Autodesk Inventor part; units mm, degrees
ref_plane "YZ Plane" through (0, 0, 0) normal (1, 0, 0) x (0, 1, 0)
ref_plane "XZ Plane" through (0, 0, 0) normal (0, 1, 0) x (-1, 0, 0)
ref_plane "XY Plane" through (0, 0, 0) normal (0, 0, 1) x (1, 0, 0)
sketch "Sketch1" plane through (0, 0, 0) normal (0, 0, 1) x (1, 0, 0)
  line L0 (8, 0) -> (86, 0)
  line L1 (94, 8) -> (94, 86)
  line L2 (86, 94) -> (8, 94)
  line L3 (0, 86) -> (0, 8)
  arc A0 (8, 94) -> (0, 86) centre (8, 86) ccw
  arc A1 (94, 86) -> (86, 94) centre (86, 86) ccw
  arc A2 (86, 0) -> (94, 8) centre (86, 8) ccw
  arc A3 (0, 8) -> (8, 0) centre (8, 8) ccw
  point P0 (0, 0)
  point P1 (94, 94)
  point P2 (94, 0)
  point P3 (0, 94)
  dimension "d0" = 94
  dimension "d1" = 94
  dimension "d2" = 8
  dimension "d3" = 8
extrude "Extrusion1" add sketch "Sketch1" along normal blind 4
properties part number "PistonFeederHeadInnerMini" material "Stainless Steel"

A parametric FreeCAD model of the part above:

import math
import FreeCAD as App
import Part
import Sketcher
Q = App.Units.Quantity

doc = App.newDocument("Part")
body = doc.addObject("PartDesign::Body", "Body")

# Sketch on XY plane
sketch1 = body.newObject("Sketcher::SketchObject", "Sketch")
sketch1.AttachmentSupport = (doc.getObject("XY_Plane"), [""])
sketch1.MapMode = "FlatFace"
sketch1.addGeometry([
    Part.ArcOfCircle(Part.Circle(App.Vector(8, 8, 0), App.Vector(0, 0, 1), 8), math.radians(180), math.radians(270)),  # 0
    Part.LineSegment(App.Vector(8, 0, 0), App.Vector(86, 0, 0)),  # 1
    Part.ArcOfCircle(Part.Circle(App.Vector(86, 8, 0), App.Vector(0, 0, 1), 8), math.radians(-90), math.radians(0)),  # 2
    Part.LineSegment(App.Vector(94, 8, 0), App.Vector(94, 86, 0)),  # 3
    Part.ArcOfCircle(Part.Circle(App.Vector(86, 86, 0), App.Vector(0, 0, 1), 8), math.radians(0), math.radians(90)),  # 4
    Part.LineSegment(App.Vector(86, 94, 0), App.Vector(8, 94, 0)),  # 5
    Part.ArcOfCircle(Part.Circle(App.Vector(8, 86, 0), App.Vector(0, 0, 1), 8), math.radians(90), math.radians(180)),  # 6
    Part.LineSegment(App.Vector(0, 86, 0), App.Vector(0, 8, 0)),  # 7
], False)
sketch1.addConstraint([
    Sketcher.Constraint("Tangent", 0, 2, 1, 1),
    Sketcher.Constraint("Tangent", 1, 2, 2, 1),
    Sketcher.Constraint("Tangent", 2, 2, 3, 1),
    Sketcher.Constraint("Tangent", 3, 2, 4, 1),
    Sketcher.Constraint("Tangent", 4, 2, 5, 1),
    Sketcher.Constraint("Tangent", 5, 2, 6, 1),
    Sketcher.Constraint("Tangent", 6, 2, 7, 1),
    Sketcher.Constraint("Tangent", 7, 2, 0, 1),
    Sketcher.Constraint("Horizontal", 1),
    Sketcher.Constraint("Vertical", 3),
    Sketcher.Constraint("Horizontal", 5),
    Sketcher.Constraint("Vertical", 7),
    Sketcher.Constraint("Equal", 0, 2),
    Sketcher.Constraint("Equal", 2, 4),
    Sketcher.Constraint("Equal", 4, 6),
    Sketcher.Constraint("PointOnObject", 0, 2, -1),
    Sketcher.Constraint("PointOnObject", 6, 2, -2),
    Sketcher.Constraint("Equal", 5, 3),
    Sketcher.Constraint("Radius", 0, Q("8 mm")),
    Sketcher.Constraint("DistanceX", -1, 1, 2, 2, Q("94 mm")),
])
pad1 = body.newObject("PartDesign::Pad", "Pad")
pad1.Profile = sketch1
pad1.Length = 4

doc.recompute()
